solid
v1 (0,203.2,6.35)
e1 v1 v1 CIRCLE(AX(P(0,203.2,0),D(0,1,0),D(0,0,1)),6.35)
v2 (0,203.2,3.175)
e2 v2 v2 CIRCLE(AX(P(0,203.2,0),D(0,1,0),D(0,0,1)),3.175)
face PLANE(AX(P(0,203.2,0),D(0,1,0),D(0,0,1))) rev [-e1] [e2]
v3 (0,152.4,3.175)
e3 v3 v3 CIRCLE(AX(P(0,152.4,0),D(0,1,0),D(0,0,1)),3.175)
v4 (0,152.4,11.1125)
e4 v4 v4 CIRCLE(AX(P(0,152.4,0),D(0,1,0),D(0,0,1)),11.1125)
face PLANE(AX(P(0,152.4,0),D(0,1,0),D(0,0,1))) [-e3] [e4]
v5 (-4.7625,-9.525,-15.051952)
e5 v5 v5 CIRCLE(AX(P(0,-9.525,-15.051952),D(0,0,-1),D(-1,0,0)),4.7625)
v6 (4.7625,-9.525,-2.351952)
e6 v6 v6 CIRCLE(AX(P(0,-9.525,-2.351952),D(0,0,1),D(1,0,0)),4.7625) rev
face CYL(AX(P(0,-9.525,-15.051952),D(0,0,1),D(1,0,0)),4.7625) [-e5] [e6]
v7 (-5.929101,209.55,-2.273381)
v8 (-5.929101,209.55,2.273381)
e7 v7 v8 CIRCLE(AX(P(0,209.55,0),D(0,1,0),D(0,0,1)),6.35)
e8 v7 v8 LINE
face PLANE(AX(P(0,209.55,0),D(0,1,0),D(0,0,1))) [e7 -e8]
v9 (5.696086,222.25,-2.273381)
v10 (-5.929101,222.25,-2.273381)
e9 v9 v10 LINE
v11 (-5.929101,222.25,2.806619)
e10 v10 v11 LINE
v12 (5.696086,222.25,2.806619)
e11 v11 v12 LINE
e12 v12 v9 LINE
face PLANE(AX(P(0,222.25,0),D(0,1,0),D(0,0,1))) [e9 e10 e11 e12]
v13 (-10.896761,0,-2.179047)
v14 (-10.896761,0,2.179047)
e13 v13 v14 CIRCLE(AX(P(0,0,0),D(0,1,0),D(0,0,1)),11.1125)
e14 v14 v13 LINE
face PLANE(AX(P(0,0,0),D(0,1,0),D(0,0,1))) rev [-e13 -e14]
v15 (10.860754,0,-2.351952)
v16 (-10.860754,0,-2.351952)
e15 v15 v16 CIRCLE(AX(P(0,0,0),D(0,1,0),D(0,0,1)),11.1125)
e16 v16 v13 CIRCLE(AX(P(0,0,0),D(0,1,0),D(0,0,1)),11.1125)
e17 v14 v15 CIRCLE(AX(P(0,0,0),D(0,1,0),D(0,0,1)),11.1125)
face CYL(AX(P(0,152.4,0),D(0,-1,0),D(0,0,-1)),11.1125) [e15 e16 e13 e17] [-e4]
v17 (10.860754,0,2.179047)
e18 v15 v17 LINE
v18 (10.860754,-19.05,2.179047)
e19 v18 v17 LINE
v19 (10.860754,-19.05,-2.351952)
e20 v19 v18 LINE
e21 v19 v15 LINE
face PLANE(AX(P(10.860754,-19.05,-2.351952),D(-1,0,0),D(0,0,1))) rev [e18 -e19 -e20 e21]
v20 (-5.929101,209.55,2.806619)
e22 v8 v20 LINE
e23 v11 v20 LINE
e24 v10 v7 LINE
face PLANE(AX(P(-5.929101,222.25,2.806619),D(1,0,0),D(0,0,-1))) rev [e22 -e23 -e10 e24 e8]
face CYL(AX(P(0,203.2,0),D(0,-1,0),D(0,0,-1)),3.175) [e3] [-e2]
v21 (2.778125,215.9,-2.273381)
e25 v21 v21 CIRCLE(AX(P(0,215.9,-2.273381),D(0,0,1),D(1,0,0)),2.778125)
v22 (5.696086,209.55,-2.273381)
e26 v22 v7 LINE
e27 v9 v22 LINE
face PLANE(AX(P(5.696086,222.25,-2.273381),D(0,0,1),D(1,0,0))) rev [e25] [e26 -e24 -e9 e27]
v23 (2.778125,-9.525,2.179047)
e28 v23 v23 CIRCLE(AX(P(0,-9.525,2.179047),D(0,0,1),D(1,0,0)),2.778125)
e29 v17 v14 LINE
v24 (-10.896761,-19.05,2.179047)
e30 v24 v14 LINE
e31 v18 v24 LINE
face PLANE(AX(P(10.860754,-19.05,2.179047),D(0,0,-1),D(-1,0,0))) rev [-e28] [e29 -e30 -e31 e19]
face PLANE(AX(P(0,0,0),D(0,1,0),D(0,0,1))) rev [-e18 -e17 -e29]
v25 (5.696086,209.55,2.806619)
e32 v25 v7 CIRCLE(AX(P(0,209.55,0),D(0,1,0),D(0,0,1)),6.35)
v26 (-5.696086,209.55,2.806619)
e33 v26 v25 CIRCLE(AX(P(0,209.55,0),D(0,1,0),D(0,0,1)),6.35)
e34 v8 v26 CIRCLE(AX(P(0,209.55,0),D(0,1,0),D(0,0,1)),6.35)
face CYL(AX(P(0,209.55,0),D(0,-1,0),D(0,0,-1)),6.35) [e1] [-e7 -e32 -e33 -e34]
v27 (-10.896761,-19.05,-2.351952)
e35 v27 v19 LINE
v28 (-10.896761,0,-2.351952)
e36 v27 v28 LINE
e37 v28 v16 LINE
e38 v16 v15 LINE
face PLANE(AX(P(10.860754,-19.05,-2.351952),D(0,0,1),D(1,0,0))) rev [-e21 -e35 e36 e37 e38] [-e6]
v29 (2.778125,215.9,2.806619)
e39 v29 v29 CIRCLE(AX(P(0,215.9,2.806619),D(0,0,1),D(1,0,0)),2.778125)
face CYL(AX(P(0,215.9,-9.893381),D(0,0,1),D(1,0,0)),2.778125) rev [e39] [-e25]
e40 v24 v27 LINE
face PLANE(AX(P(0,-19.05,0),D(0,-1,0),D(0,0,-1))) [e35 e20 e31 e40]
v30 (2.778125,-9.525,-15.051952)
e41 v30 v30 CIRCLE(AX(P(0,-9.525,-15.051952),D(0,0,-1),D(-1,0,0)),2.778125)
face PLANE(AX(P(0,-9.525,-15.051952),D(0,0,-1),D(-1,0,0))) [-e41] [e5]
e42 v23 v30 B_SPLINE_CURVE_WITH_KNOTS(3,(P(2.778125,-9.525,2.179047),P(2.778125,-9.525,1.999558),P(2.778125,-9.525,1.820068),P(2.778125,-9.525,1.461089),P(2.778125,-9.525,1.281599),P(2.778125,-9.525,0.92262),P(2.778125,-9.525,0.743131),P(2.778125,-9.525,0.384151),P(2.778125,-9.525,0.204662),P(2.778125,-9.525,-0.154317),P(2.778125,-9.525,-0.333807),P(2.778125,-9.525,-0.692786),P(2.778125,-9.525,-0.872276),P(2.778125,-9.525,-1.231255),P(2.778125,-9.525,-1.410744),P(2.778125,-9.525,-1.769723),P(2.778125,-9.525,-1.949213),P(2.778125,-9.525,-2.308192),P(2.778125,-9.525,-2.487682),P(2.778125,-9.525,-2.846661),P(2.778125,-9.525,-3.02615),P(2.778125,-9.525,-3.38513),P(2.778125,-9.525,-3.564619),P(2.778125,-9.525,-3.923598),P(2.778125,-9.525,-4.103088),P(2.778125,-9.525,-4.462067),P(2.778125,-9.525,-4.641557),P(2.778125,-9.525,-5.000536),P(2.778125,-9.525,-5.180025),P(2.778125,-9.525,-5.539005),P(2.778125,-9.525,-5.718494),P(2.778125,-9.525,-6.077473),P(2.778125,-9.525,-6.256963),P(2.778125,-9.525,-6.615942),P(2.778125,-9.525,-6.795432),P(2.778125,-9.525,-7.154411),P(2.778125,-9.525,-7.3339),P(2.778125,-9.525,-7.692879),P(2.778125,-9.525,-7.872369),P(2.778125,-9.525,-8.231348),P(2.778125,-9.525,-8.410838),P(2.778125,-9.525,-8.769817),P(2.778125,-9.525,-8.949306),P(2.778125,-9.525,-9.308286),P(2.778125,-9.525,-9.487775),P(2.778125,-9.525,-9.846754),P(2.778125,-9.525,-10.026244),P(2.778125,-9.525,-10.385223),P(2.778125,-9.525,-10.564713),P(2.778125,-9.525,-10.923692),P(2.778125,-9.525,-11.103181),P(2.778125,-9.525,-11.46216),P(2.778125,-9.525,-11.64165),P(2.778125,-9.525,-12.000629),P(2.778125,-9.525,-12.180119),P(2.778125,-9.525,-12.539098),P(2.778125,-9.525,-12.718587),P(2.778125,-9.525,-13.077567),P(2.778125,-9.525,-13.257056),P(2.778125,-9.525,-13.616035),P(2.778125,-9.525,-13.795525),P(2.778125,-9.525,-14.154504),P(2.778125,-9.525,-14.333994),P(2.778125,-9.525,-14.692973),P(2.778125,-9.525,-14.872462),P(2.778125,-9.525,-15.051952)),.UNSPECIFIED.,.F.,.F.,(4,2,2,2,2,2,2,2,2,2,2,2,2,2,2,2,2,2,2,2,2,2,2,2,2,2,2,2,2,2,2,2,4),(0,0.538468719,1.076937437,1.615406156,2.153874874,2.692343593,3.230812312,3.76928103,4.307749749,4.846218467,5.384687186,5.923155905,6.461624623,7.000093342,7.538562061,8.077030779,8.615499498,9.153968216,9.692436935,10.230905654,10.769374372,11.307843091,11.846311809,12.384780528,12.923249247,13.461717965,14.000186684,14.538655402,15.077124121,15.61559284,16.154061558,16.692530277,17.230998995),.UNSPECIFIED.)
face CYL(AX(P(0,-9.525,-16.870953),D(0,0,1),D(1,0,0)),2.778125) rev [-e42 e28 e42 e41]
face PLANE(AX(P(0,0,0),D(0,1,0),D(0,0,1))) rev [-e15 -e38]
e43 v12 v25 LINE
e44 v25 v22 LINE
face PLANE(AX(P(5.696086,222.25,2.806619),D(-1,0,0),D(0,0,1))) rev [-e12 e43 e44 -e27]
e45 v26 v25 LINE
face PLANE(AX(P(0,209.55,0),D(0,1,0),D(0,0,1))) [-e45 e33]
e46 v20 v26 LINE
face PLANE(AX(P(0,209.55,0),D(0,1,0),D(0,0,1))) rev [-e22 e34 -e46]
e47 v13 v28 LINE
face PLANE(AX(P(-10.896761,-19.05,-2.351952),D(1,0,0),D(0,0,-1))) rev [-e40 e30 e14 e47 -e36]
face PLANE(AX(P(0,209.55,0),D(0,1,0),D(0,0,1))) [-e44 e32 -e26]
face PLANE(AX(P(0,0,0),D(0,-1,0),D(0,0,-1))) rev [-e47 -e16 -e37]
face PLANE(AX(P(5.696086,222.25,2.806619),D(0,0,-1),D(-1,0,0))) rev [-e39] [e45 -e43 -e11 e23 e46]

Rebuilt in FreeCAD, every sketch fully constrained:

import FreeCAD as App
import Part
import Sketcher
from FreeCAD import Vector
Q = App.Units.Quantity


def add_polygon(sketch, points):
    """Adds a closed chain of lines whose ends are joined by coincident constraints."""
    first, n = sketch.GeometryCount, len(points)
    for a, b in zip(points, points[1:] + points[:1]):
        sketch.addGeometry(Part.LineSegment(App.Vector(*a, 0), App.Vector(*b, 0)), False)
    for i in range(n):
        sketch.addConstraint(Sketcher.Constraint("Coincident", first + i, 2, first + (i + 1) % n, 1))

doc = App.newDocument("Part")
body = doc.addObject("PartDesign::Body", "Body")

# Sketch on XZ plane
sketch1 = body.newObject("Sketcher::SketchObject", "Sketch")
sketch1.AttachmentSupport = (doc.getObject("XZ_Plane"), [""])
sketch1.MapMode = "FlatFace"
sketch1.addGeometry(Part.Circle(Vector(0, 0, 0), Vector(0, 0, 1), 11), False)
sketch1.addConstraint(Sketcher.Constraint("Coincident", 0, 3, -1, 1))
sketch1.addConstraint(Sketcher.Constraint("Diameter", 0, Q("0.875 in")))
pad1 = body.newObject("PartDesign::Pad", "Pad")
pad1.Profile = sketch1
pad1.Length = Q("6 in")
pad1.Reversed = True

# Sketch on XZ plane
sketch2 = body.newObject("Sketcher::SketchObject", "Sketch001")
sketch2.AttachmentSupport = (doc.getObject("XZ_Plane"), [""])
sketch2.MapMode = "FlatFace"
sketch2.AttachmentOffset = App.Placement(Vector(0, 0, -6 * 25.4), App.Rotation())
sketch2.addGeometry(Part.Circle(Vector(0, 0, 0), Vector(0, 0, 1), 3.2), False)
sketch2.addConstraint(Sketcher.Constraint("Coincident", 0, 3, -1, 1))
sketch2.addConstraint(Sketcher.Constraint("Diameter", 0, Q("0.25 in")))
pad2 = body.newObject("PartDesign::Pad", "Pad001")
pad2.Profile = sketch2
pad2.Length = Q("2 in")
pad2.Reversed = True

# Sketch on XZ plane
sketch3 = body.newObject("Sketcher::SketchObject", "Sketch002")
sketch3.AttachmentSupport = (doc.getObject("XZ_Plane"), [""])
sketch3.MapMode = "FlatFace"
add_polygon(sketch3, [(-10.9, 2.2), (-10.9, -2.4), (10.9, -2.4), (10.9, 2.2)])  # lines 0-3
sketch3.addConstraint(Sketcher.Constraint("Vertical", 0))
sketch3.addConstraint(Sketcher.Constraint("Horizontal", 1))
sketch3.addConstraint(Sketcher.Constraint("Vertical", 2))
sketch3.addConstraint(Sketcher.Constraint("Horizontal", 3))
sketch3.addConstraint(Sketcher.Constraint("DistanceY", 0, 2, 0, 1, Q("4.530999 mm")))
sketch3.addConstraint(Sketcher.Constraint("DistanceX", 1, 1, 1, 2, Q("21.757515 mm")))
sketch3.addConstraint(Sketcher.Constraint("DistanceX", 0, 2, -1, 1, Q("10.896761 mm")))
sketch3.addConstraint(Sketcher.Constraint("DistanceY", 0, 2, -1, 1, Q("2.351952 mm")))
pad3 = body.newObject("PartDesign::Pad", "Pad002")
pad3.Profile = sketch3
pad3.Length = Q("0.75 in")

# Sketch on XY plane
sketch4 = body.newObject("Sketcher::SketchObject", "Sketch003")
sketch4.AttachmentSupport = (doc.getObject("XY_Plane"), [""])
sketch4.MapMode = "FlatFace"
sketch4.AttachmentOffset = App.Placement(Vector(0, 0, 2.179047), App.Rotation())
sketch4.addGeometry(Part.Circle(Vector(0, -9.5, 0), Vector(0, 0, 1), 2.8), False)
sketch4.addConstraint(Sketcher.Constraint("PointOnObject", 0, 3, -2))
sketch4.addConstraint(Sketcher.Constraint("Diameter", 0, Q("0.21875 in")))
sketch4.addConstraint(Sketcher.Constraint("DistanceY", 0, 3, -1, 1, Q("0.375 in")))
pocket1 = body.newObject("PartDesign::Pocket", "Pocket")
pocket1.Profile = sketch4
pocket1.Length = Q("0.75 in")

# Sketch on XY plane
sketch5 = body.newObject("Sketcher::SketchObject", "Sketch004")
sketch5.AttachmentSupport = (doc.getObject("XY_Plane"), [""])
sketch5.MapMode = "FlatFace"
sketch5.AttachmentOffset = App.Placement(Vector(0, 0, -2.351952), App.Rotation())
sketch5.addGeometry(Part.Circle(Vector(0, -9.5, 0), Vector(0, 0, 1), 4.8), False)
sketch5.addGeometry(Part.Circle(Vector(0, -9.5, 0), Vector(0, 0, 1), 2.8), False)
sketch5.addConstraint(Sketcher.Constraint("Coincident", 1, 3, 0, 3))
sketch5.addConstraint(Sketcher.Constraint("PointOnObject", 0, 3, -2))
sketch5.addConstraint(Sketcher.Constraint("Diameter", 0, Q("0.375 in")))
sketch5.addConstraint(Sketcher.Constraint("Diameter", 1, Q("0.21875 in")))
sketch5.addConstraint(Sketcher.Constraint("DistanceY", 0, 3, -1, 1, Q("0.375 in")))
pad4 = body.newObject("PartDesign::Pad", "Pad003")
pad4.Profile = sketch5
pad4.Length = Q("0.5 in")
pad4.Reversed = True

# Sketch on XZ plane
sketch6 = body.newObject("Sketcher::SketchObject", "Sketch005")
sketch6.AttachmentSupport = (doc.getObject("XZ_Plane"), [""])
sketch6.MapMode = "FlatFace"
sketch6.AttachmentOffset = App.Placement(Vector(0, 0, -8 * 25.4), App.Rotation())
sketch6.addGeometry(Part.Circle(Vector(0, 0, 0), Vector(0, 0, 1), 6), False)
sketch6.addConstraint(Sketcher.Constraint("Coincident", 0, 3, -1, 1))
sketch6.addConstraint(Sketcher.Constraint("Diameter", 0, Q("0.5 in")))
pad5 = body.newObject("PartDesign::Pad", "Pad004")
pad5.Profile = sketch6
pad5.Length = Q("0.25 in")
pad5.Reversed = True

# Sketch on XZ plane
sketch7 = body.newObject("Sketcher::SketchObject", "Sketch006")
sketch7.AttachmentSupport = (doc.getObject("XZ_Plane"), [""])
sketch7.MapMode = "FlatFace"
sketch7.AttachmentOffset = App.Placement(Vector(0, 0, -8.25 * 25.4), App.Rotation())
add_polygon(sketch7, [(-6, -2), (-6, 3), (6, 3), (6, -2)])  # lines 0-3
sketch7.addConstraint(Sketcher.Constraint("Vertical", 0))
sketch7.addConstraint(Sketcher.Constraint("Horizontal", 1))
sketch7.addConstraint(Sketcher.Constraint("Vertical", 2))
sketch7.addConstraint(Sketcher.Constraint("Horizontal", 3))
sketch7.addConstraint(Sketcher.Constraint("DistanceY", 0, 1, 0, 2, Q("0.2 in")))
sketch7.addConstraint(Sketcher.Constraint("DistanceX", 0, 2, -1, 1, Q("5.929101 mm")))
sketch7.addConstraint(Sketcher.Constraint("DistanceX", 1, 1, 1, 2, Q("11.625187 mm")))
sketch7.addConstraint(Sketcher.Constraint("DistanceY", -1, 1, 0, 2, Q("2.806619 mm")))
pad6 = body.newObject("PartDesign::Pad", "Pad005")
pad6.Profile = sketch7
pad6.Length = Q("0.5 in")
pad6.Reversed = True

# Sketch on XY plane
sketch8 = body.newObject("Sketcher::SketchObject", "Sketch007")
sketch8.AttachmentSupport = (doc.getObject("XY_Plane"), [""])
sketch8.MapMode = "FlatFace"
sketch8.AttachmentOffset = App.Placement(Vector(0, 0, 2.806619), App.Rotation())
sketch8.addGeometry(Part.Circle(Vector(0, 215.9, 0), Vector(0, 0, 1), 2.8), False)
sketch8.addConstraint(Sketcher.Constraint("PointOnObject", 0, 3, -2))
sketch8.addConstraint(Sketcher.Constraint("Diameter", 0, Q("0.21875 in")))
sketch8.addConstraint(Sketcher.Constraint("DistanceY", -1, 1, 0, 3, Q("8.5 in")))
pocket2 = body.newObject("PartDesign::Pocket", "Pocket001")
pocket2.Profile = sketch8
pocket2.Length = Q("0.5 in")

doc.recompute()
